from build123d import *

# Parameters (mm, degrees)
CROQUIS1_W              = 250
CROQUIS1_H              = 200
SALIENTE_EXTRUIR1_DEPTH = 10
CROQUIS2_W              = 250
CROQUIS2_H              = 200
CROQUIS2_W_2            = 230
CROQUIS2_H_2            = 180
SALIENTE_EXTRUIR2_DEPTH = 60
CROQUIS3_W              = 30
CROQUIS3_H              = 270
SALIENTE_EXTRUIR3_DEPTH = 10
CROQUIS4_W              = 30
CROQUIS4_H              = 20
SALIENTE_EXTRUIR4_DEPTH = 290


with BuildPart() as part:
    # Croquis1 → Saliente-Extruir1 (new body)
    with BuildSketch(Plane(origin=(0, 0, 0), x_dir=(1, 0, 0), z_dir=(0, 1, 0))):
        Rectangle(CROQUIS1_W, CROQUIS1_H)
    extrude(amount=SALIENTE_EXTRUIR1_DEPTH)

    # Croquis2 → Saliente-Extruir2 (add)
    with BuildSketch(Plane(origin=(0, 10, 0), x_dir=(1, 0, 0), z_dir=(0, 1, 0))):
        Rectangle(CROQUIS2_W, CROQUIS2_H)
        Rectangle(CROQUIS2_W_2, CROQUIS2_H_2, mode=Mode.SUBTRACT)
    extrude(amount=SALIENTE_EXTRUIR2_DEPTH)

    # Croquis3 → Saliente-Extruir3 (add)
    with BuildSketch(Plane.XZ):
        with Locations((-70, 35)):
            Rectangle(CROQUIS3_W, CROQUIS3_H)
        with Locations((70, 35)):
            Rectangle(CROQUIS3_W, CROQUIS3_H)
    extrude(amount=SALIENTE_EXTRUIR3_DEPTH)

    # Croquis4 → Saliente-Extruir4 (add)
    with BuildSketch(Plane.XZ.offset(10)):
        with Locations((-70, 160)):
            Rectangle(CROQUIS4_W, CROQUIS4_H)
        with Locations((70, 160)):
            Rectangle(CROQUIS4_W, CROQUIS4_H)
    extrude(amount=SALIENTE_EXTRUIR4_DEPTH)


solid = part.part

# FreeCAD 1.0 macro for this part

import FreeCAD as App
import Part
import Sketcher
Q = App.Units.Quantity


def add_polygon(sketch, points):
    """Adds a closed chain of lines whose ends are joined by coincident constraints."""
    first, n = sketch.GeometryCount, len(points)
    for a, b in zip(points, points[1:] + points[:1]):
        sketch.addGeometry(Part.LineSegment(App.Vector(*a, 0), App.Vector(*b, 0)), False)
    for i in range(n):
        sketch.addConstraint(Sketcher.Constraint("Coincident", first + i, 2, first + (i + 1) % n, 1))

doc = App.newDocument("Part")
params = doc.addObject("Spreadsheet::Sheet", "Params")
for row, (alias, value) in enumerate([
    ("sketch1_width", "250 mm"),
    ("sketch1_height", "200 mm"),
    ("pad1_length", "10 mm"),
    ("sketch2_width", "250 mm"),
    ("sketch2_width2", "230 mm"),
    ("sketch2_height", "200 mm"),
    ("sketch2_height2", "180 mm"),
    ("pad2_length", "60 mm"),
    ("sketch3_width", "30 mm"),
    ("sketch3_height", "270 mm"),
    ("pad3_length", "10 mm"),
    ("sketch4_width", "30 mm"),
    ("sketch4_height", "20 mm"),
    ("pad4_length", "290 mm"),
], start=1):
    params.set(f"A{row}", alias)
    params.set(f"B{row}", "=" + value)
    params.setAlias(f"B{row}", alias)

body = doc.addObject("PartDesign::Body", "Body")

# Sketch on XZ plane
sketch1 = body.newObject("Sketcher::SketchObject", "Sketch")
sketch1.AttachmentSupport = (doc.getObject("XZ_Plane"), [""])
sketch1.MapMode = "FlatFace"
add_polygon(sketch1, [(-125, -100), (-125, 100), (125, 100), (125, -100)])  # lines 0-3
sketch1.addConstraint(Sketcher.Constraint("Vertical", 0))
sketch1.addConstraint(Sketcher.Constraint("Horizontal", 1))
sketch1.addConstraint(Sketcher.Constraint("Vertical", 2))
sketch1.addConstraint(Sketcher.Constraint("Horizontal", 3))
sketch1.addConstraint(Sketcher.Constraint("Symmetric", 0, 2, 2, 2, -1, 1))
sketch1.addConstraint(Sketcher.Constraint("DistanceX", 1, 1, 1, 2, Q("250 mm")))
sketch1.addConstraint(Sketcher.Constraint("DistanceY", 0, 1, 0, 2, Q("200 mm")))
sketch1.setExpression("Constraints[9]", "Params.sketch1_width")
sketch1.setExpression("Constraints[10]", "Params.sketch1_height")
pad1 = body.newObject("PartDesign::Pad", "Pad")
pad1.Profile = sketch1
pad1.setExpression("Length", "Params.pad1_length")
pad1.Reversed = True

# Sketch on XZ plane
sketch2 = body.newObject("Sketcher::SketchObject", "Sketch001")
sketch2.AttachmentSupport = (doc.getObject("XZ_Plane"), [""])
sketch2.MapMode = "FlatFace"
sketch2.AttachmentOffset = App.Placement(App.Vector(0, 0, -10), App.Rotation())
add_polygon(sketch2, [(-125, -100), (-125, 100), (125, 100), (125, -100)])  # lines 0-3
add_polygon(sketch2, [(115, 90), (-115, 90), (-115, -90), (115, -90)])  # lines 4-7
sketch2.addConstraint(Sketcher.Constraint("Vertical", 0))
sketch2.addConstraint(Sketcher.Constraint("Horizontal", 1))
sketch2.addConstraint(Sketcher.Constraint("Vertical", 2))
sketch2.addConstraint(Sketcher.Constraint("Horizontal", 3))
sketch2.addConstraint(Sketcher.Constraint("Horizontal", 4))
sketch2.addConstraint(Sketcher.Constraint("Vertical", 5))
sketch2.addConstraint(Sketcher.Constraint("Horizontal", 6))
sketch2.addConstraint(Sketcher.Constraint("Vertical", 7))
sketch2.addConstraint(Sketcher.Constraint("Symmetric", 0, 2, 2, 2, -1, 1))
sketch2.addConstraint(Sketcher.Constraint("Symmetric", 4, 2, 6, 2, -1, 1))
sketch2.addConstraint(Sketcher.Constraint("DistanceX", 1, 1, 1, 2, Q("250 mm")))
sketch2.addConstraint(Sketcher.Constraint("DistanceX", 4, 2, 4, 1, Q("230 mm")))
sketch2.addConstraint(Sketcher.Constraint("DistanceY", 0, 1, 0, 2, Q("200 mm")))
sketch2.addConstraint(Sketcher.Constraint("DistanceY", 5, 2, 5, 1, Q("180 mm")))
sketch2.setExpression("Constraints[18]", "Params.sketch2_width")
sketch2.setExpression("Constraints[19]", "Params.sketch2_width2")
sketch2.setExpression("Constraints[20]", "Params.sketch2_height")
sketch2.setExpression("Constraints[21]", "Params.sketch2_height2")
pad2 = body.newObject("PartDesign::Pad", "Pad001")
pad2.Profile = sketch2
pad2.setExpression("Length", "Params.pad2_length")
pad2.Reversed = True

# Sketch on XZ plane
sketch3 = body.newObject("Sketcher::SketchObject", "Sketch002")
sketch3.AttachmentSupport = (doc.getObject("XZ_Plane"), [""])
sketch3.MapMode = "FlatFace"
add_polygon(sketch3, [(-85, 170), (-85, -100), (-55, -100), (-55, 170)])  # lines 0-3
add_polygon(sketch3, [(55, 170), (55, -100), (85, -100), (85, 170)])  # lines 4-7
sketch3.addConstraint(Sketcher.Constraint("Vertical", 0))
sketch3.addConstraint(Sketcher.Constraint("Horizontal", 1))
sketch3.addConstraint(Sketcher.Constraint("Vertical", 2))
sketch3.addConstraint(Sketcher.Constraint("Horizontal", 3))
sketch3.addConstraint(Sketcher.Constraint("Vertical", 4))
sketch3.addConstraint(Sketcher.Constraint("Horizontal", 5))
sketch3.addConstraint(Sketcher.Constraint("Vertical", 6))
sketch3.addConstraint(Sketcher.Constraint("Horizontal", 7))
sketch3.addConstraint(Sketcher.Constraint("Symmetric", 1, 2, 4, 2, -2))
sketch3.addConstraint(Sketcher.Constraint("Symmetric", 3, 2, 6, 2, -2))
sketch3.addConstraint(Sketcher.Constraint("DistanceX", 1, 1, 1, 2, Q("30 mm")))
sketch3.addConstraint(Sketcher.Constraint("DistanceY", 0, 2, 0, 1, Q("270 mm")))
sketch3.addConstraint(Sketcher.Constraint("DistanceX", 0, 2, -1, 1, Q("85 mm")))
sketch3.addConstraint(Sketcher.Constraint("DistanceY", 0, 2, -1, 1, Q("100 mm")))
sketch3.setExpression("Constraints[18]", "Params.sketch3_width")
sketch3.setExpression("Constraints[19]", "Params.sketch3_height")
pad3 = body.newObject("PartDesign::Pad", "Pad002")
pad3.Profile = sketch3
pad3.setExpression("Length", "Params.pad3_length")

# Sketch on XZ plane
sketch4 = body.newObject("Sketcher::SketchObject", "Sketch003")
sketch4.AttachmentSupport = (doc.getObject("XZ_Plane"), [""])
sketch4.MapMode = "FlatFace"
sketch4.AttachmentOffset = App.Placement(App.Vector(0, 0, 10), App.Rotation())
add_polygon(sketch4, [(-85, 170), (-85, 150), (-55, 150), (-55, 170)])  # lines 0-3
add_polygon(sketch4, [(55, 170), (55, 150), (85, 150), (85, 170)])  # lines 4-7
sketch4.addConstraint(Sketcher.Constraint("Vertical", 0))
sketch4.addConstraint(Sketcher.Constraint("Horizontal", 1))
sketch4.addConstraint(Sketcher.Constraint("Vertical", 2))
sketch4.addConstraint(Sketcher.Constraint("Horizontal", 3))
sketch4.addConstraint(Sketcher.Constraint("Vertical", 4))
sketch4.addConstraint(Sketcher.Constraint("Horizontal", 5))
sketch4.addConstraint(Sketcher.Constraint("Vertical", 6))
sketch4.addConstraint(Sketcher.Constraint("Horizontal", 7))
sketch4.addConstraint(Sketcher.Constraint("Symmetric", 1, 2, 4, 2, -2))
sketch4.addConstraint(Sketcher.Constraint("Symmetric", 3, 2, 6, 2, -2))
sketch4.addConstraint(Sketcher.Constraint("DistanceX", 1, 1, 1, 2, Q("30 mm")))
sketch4.addConstraint(Sketcher.Constraint("DistanceY", 0, 2, 0, 1, Q("20 mm")))
sketch4.addConstraint(Sketcher.Constraint("DistanceX", 0, 2, -1, 1, Q("85 mm")))
sketch4.addConstraint(Sketcher.Constraint("DistanceY", -1, 1, 0, 2, Q("150 mm")))
sketch4.setExpression("Constraints[18]", "Params.sketch4_width")
sketch4.setExpression("Constraints[19]", "Params.sketch4_height")
pad4 = body.newObject("PartDesign::Pad", "Pad003")
pad4.Profile = sketch4
pad4.setExpression("Length", "Params.pad4_length")

doc.recompute()
